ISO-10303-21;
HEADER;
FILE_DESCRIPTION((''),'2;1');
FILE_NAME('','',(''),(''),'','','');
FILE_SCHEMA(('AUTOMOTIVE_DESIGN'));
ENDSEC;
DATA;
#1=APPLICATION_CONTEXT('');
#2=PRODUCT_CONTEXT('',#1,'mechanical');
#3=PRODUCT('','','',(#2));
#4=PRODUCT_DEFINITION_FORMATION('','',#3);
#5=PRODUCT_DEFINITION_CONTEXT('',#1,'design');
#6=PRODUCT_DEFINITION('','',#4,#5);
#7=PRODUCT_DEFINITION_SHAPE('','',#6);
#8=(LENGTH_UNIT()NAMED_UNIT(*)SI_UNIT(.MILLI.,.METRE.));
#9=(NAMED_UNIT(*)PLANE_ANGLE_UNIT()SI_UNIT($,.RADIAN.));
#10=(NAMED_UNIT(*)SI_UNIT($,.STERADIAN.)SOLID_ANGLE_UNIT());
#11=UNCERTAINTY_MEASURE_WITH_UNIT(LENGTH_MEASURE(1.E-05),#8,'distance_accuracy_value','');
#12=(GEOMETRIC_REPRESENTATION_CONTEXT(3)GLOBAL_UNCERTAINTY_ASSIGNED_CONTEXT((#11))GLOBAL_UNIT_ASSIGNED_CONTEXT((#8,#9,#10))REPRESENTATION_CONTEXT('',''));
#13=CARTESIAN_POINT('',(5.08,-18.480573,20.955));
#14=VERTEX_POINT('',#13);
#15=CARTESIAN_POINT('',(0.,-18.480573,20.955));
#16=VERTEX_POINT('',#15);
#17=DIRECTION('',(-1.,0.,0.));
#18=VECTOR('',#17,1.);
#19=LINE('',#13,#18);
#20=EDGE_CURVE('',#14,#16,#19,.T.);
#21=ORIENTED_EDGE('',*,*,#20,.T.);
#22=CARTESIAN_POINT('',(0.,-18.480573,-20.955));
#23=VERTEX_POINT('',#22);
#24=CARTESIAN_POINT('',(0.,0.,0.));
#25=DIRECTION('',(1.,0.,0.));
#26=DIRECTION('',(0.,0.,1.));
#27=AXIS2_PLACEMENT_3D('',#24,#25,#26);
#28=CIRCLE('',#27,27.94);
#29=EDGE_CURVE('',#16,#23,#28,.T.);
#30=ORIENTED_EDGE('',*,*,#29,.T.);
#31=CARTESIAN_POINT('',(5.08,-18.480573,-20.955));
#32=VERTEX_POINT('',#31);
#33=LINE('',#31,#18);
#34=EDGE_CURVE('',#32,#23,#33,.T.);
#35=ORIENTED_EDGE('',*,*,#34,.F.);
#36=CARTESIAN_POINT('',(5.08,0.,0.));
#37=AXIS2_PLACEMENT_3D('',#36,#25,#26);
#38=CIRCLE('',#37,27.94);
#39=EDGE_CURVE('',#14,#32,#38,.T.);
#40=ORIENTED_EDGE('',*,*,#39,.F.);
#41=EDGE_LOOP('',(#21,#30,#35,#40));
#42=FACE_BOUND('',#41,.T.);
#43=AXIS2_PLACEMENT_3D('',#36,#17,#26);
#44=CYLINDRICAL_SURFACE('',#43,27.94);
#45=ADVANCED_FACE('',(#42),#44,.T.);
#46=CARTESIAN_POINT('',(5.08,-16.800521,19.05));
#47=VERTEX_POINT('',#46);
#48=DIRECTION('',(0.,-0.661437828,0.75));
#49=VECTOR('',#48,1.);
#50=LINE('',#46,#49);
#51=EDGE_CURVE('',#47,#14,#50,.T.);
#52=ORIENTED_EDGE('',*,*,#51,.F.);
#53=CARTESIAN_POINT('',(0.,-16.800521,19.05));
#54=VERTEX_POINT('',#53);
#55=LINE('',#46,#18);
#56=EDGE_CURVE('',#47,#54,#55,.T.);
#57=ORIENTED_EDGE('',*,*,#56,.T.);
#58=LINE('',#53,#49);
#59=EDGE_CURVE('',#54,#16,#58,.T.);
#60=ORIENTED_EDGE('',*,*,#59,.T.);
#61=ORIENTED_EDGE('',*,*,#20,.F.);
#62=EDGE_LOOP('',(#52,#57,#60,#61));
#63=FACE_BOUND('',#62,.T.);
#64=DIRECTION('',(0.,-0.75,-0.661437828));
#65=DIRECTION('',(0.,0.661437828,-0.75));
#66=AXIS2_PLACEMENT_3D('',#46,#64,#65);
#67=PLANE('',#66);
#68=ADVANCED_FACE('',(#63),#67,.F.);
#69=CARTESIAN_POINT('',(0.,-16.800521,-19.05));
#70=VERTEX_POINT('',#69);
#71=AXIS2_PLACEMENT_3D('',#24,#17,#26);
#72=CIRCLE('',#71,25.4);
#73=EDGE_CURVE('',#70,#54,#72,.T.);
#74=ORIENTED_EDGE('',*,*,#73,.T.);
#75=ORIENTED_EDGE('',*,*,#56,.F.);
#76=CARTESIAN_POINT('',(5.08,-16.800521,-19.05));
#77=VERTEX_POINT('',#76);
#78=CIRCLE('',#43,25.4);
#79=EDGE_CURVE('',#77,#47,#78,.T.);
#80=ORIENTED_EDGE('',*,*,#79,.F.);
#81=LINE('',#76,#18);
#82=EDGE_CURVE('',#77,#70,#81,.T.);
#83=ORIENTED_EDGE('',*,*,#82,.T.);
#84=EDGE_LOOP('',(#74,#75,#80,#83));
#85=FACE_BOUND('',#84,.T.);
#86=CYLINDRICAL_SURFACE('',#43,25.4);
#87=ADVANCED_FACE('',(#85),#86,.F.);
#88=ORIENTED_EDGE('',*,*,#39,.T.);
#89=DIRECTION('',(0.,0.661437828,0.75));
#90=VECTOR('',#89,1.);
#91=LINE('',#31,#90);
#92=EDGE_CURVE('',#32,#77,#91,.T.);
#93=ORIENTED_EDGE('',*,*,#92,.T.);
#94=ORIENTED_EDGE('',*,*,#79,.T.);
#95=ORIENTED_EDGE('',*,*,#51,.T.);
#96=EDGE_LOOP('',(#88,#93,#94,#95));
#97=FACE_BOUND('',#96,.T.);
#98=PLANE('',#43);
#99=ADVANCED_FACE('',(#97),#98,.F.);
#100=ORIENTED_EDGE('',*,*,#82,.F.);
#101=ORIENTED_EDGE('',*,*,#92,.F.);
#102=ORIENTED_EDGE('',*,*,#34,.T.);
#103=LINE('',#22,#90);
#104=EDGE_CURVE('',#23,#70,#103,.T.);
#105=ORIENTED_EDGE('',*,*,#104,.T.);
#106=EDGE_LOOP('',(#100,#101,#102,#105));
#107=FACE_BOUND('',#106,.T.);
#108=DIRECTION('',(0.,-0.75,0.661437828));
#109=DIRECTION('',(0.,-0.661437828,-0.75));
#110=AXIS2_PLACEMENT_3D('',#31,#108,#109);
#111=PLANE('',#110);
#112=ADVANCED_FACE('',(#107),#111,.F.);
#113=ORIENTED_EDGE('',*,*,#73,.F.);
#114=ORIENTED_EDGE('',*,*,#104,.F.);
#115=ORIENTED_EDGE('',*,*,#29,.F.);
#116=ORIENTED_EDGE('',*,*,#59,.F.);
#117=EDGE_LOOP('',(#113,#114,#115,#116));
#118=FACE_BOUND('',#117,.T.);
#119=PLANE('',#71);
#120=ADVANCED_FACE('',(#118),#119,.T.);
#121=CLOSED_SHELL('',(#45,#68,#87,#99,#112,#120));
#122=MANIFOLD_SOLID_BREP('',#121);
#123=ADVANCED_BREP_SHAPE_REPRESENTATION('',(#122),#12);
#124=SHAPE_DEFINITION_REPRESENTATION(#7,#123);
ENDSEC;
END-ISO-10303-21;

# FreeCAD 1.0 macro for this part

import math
import FreeCAD as App
import Part
import Sketcher
Q = App.Units.Quantity

doc = App.newDocument("Part")
body = doc.addObject("PartDesign::Body", "Body")

# Sketch on YZ plane
sketch1 = body.newObject("Sketcher::SketchObject", "Sketch")
sketch1.AttachmentSupport = (doc.getObject("YZ_Plane"), [""])
sketch1.MapMode = "FlatFace"
sketch1.addGeometry([
    Part.LineSegment(App.Vector(-18.5, -21, 0), App.Vector(-16.8, -19.1, 0)),
    Part.ArcOfCircle(Part.Circle(App.Vector(0, 0, 0), App.Vector(0, 0, 1), 25.4), math.radians(131), math.radians(229)),
    Part.LineSegment(App.Vector(-16.8, 19.1, 0), App.Vector(-18.5, 21, 0)),
    Part.ArcOfCircle(Part.Circle(App.Vector(0, 0, 0), App.Vector(0, 0, 1), 27.9), math.radians(131), math.radians(229)),
], False)
sketch1.addConstraint([
    Sketcher.Constraint("Coincident", 0, 2, 1, 2),
    Sketcher.Constraint("Coincident", 1, 1, 2, 1),
    Sketcher.Constraint("Coincident", 2, 2, 3, 1),
    Sketcher.Constraint("Coincident", 3, 2, 0, 1),
    Sketcher.Constraint("Coincident", 1, 3, -1, 1),
    Sketcher.Constraint("Coincident", 3, 3, -1, 1),
    Sketcher.Constraint("Vertical", 0, 2, 1, 1),
    Sketcher.Constraint("Vertical", 2, 2, 3, 2),
    Sketcher.Constraint("Radius", 1, Q("1 in")),
    Sketcher.Constraint("Radius", 3, Q("1.1 in")),
    Sketcher.Constraint("DistanceY", 0, 2, 1, 1, Q("1.5 in")),
    Sketcher.Constraint("DistanceY", 3, 2, 2, 2, Q("1.65 in")),
])
pad1 = body.newObject("PartDesign::Pad", "Pad")
pad1.Profile = sketch1
pad1.Length = Q("0.2 in")

doc.recompute()
